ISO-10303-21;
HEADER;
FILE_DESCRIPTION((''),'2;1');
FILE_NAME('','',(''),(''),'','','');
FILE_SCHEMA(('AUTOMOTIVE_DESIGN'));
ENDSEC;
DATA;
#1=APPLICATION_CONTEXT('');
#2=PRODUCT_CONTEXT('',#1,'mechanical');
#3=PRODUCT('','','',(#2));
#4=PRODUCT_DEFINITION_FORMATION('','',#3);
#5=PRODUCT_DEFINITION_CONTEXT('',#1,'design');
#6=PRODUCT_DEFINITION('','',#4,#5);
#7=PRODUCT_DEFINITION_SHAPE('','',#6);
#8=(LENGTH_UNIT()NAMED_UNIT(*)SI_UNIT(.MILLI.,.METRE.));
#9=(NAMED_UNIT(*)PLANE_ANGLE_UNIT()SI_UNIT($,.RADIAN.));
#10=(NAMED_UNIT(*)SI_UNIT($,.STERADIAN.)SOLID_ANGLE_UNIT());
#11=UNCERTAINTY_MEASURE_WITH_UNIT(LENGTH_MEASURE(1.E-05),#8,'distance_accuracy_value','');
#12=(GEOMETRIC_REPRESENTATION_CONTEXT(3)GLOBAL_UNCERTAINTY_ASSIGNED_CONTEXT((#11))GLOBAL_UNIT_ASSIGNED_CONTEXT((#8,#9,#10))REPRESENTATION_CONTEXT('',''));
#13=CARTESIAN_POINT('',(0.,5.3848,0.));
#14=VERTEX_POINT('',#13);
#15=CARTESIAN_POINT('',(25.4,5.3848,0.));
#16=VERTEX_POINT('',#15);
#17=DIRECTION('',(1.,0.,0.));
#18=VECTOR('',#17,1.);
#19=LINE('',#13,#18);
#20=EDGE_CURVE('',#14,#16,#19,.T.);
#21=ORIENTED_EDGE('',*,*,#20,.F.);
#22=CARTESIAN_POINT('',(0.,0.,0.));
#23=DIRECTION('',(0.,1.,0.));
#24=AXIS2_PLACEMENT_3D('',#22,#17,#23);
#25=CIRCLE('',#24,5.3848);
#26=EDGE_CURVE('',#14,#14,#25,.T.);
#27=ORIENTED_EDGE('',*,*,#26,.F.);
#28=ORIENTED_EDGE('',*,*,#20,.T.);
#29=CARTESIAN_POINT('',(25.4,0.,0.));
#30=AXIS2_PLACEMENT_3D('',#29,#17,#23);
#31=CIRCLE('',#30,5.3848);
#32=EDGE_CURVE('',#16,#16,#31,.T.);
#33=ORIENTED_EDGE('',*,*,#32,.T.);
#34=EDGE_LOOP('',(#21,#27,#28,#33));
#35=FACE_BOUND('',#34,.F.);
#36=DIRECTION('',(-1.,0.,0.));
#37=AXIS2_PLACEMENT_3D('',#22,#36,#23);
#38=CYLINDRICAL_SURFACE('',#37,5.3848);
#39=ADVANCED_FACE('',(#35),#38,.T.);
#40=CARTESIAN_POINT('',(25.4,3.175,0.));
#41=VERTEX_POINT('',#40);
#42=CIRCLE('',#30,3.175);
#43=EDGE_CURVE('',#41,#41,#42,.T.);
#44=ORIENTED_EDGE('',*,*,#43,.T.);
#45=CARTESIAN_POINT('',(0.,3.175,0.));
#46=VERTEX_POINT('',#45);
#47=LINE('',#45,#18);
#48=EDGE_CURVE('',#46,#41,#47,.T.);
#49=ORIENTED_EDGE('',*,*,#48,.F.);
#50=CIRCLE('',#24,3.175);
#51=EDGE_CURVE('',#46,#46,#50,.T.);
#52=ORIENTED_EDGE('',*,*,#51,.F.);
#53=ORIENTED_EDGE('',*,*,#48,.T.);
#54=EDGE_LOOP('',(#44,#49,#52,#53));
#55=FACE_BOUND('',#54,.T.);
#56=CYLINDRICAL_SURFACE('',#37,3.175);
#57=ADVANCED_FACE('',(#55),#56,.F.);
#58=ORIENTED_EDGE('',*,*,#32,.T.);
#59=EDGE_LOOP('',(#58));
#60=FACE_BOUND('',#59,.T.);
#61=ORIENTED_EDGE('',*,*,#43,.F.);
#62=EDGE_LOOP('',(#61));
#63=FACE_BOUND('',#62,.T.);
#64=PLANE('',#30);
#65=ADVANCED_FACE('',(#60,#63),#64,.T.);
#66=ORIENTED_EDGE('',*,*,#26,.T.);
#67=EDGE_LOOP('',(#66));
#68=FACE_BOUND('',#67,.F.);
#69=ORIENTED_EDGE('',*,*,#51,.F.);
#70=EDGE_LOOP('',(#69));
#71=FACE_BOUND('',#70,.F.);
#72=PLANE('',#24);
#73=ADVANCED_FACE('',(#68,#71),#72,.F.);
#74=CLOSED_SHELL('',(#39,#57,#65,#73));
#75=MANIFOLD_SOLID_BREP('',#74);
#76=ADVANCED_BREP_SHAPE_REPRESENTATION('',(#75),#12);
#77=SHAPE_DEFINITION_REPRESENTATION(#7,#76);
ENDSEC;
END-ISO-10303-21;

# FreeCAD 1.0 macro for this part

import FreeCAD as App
import Part
import Sketcher
Q = App.Units.Quantity

doc = App.newDocument("Part")
body = doc.addObject("PartDesign::Body", "Body")

sketch1 = body.newObject("Sketcher::SketchObject", "Sketch")
sketch1.AttachmentSupport = (doc.getObject("YZ_Plane"), [""])
sketch1.MapMode = "FlatFace"
sketch1.addGeometry([
    Part.Circle(App.Vector(0, 0, 0), App.Vector(0, 0, 1), 5.4),
    Part.Circle(App.Vector(0, 0, 0), App.Vector(0, 0, 1), 3.2),
], False)
sketch1.addConstraint([
    Sketcher.Constraint("Coincident", 0, 3, -1, 1),
    Sketcher.Constraint("Coincident", 1, 3, -1, 1),
    Sketcher.Constraint("Diameter", 1, Q("0.25 in")),
    Sketcher.Constraint("Diameter", 0, Q("0.424 in")),
])
pad1 = body.newObject("PartDesign::Pad", "Pad")
pad1.Profile = sketch1
pad1.Length = Q("1 in")

doc.recompute()
